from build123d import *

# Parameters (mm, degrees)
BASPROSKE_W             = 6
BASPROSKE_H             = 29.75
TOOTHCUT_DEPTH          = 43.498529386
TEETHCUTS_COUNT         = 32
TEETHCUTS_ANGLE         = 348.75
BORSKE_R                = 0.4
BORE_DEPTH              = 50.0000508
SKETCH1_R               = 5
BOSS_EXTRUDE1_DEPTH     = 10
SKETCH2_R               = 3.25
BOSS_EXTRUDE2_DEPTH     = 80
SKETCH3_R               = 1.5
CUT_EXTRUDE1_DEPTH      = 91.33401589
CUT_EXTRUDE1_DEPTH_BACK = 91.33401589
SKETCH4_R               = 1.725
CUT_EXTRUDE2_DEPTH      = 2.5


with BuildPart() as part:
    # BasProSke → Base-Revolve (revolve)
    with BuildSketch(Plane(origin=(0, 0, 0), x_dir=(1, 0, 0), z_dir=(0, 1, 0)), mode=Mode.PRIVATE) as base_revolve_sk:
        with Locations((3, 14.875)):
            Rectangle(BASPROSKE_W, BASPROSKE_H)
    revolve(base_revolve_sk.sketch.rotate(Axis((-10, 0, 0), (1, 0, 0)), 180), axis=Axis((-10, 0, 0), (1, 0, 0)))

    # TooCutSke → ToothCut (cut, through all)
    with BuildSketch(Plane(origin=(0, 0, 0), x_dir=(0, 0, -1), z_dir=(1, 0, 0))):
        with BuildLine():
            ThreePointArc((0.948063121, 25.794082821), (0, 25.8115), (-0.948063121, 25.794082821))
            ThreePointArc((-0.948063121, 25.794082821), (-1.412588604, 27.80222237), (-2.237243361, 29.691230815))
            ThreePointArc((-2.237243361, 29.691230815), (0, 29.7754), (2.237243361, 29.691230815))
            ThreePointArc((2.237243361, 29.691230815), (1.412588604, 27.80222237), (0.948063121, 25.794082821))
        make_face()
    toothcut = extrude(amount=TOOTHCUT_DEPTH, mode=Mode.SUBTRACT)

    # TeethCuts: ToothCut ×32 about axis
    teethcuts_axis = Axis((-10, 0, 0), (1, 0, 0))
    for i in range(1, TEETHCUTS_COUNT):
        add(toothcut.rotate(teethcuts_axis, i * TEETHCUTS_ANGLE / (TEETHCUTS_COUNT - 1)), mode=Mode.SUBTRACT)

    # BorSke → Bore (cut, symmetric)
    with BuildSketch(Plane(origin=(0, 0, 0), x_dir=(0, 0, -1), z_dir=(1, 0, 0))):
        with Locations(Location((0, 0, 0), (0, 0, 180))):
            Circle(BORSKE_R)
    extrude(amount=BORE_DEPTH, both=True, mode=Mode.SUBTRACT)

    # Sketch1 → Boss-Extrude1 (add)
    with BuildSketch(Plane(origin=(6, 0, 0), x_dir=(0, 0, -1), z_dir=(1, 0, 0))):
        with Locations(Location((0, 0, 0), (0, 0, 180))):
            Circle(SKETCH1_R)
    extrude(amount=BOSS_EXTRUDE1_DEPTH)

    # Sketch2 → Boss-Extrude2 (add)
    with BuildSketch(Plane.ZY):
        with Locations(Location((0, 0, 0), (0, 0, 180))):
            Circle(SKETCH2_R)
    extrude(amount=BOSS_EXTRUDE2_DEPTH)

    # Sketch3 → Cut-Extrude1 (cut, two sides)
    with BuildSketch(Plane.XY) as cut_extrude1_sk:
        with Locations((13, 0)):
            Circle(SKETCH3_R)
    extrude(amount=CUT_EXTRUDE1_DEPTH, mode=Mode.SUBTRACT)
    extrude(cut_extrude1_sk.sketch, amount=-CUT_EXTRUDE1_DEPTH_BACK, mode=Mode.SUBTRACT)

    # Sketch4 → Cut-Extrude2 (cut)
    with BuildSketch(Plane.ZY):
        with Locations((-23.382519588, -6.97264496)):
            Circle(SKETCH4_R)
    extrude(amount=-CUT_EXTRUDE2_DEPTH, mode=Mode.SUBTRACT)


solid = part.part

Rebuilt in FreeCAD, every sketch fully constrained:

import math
import FreeCAD as App
import Part
import Sketcher
from FreeCAD import Vector
Q = App.Units.Quantity


def add_polygon(sketch, points):
    """Adds a closed chain of lines whose ends are joined by coincident constraints."""
    first, n = sketch.GeometryCount, len(points)
    for a, b in zip(points, points[1:] + points[:1]):
        sketch.addGeometry(Part.LineSegment(App.Vector(*a, 0), App.Vector(*b, 0)), False)
    for i in range(n):
        sketch.addConstraint(Sketcher.Constraint("Coincident", first + i, 2, first + (i + 1) % n, 1))

doc = App.newDocument("Part")
body = doc.addObject("PartDesign::Body", "Body")

# Sketch on XZ plane
sketch1 = body.newObject("Sketcher::SketchObject", "Sketch")
sketch1.AttachmentSupport = (doc.getObject("XZ_Plane"), [""])
sketch1.MapMode = "FlatFace"
add_polygon(sketch1, [(0, -30), (0, 0), (6, 0), (6, -30)])  # lines 0-3
sketch1.addConstraint([
    Sketcher.Constraint("Vertical", 0),
    Sketcher.Constraint("Horizontal", 1),
    Sketcher.Constraint("Vertical", 2),
    Sketcher.Constraint("Horizontal", 3),
    Sketcher.Constraint("Coincident", 0, 2, -1, 1),
    Sketcher.Constraint("DistanceX", 1, 1, 1, 2, Q("6 mm")),
    Sketcher.Constraint("DistanceY", 0, 1, 0, 2, Q("29.75 mm")),
])
revolution = body.newObject("PartDesign::Revolution", "Revolution")
revolution.Profile = sketch1
revolution.ReferenceAxis = (sketch1, ["H_Axis"])
revolution.Angle = 360

# Sketch on YZ plane
sketch2 = body.newObject("Sketcher::SketchObject", "Sketch001")
sketch2.AttachmentSupport = (doc.getObject("YZ_Plane"), [""])
sketch2.MapMode = "FlatFace"
sketch2.addGeometry([
    Part.ArcOfCircle(Part.Circle(Vector(0, 0, 0), Vector(0, 0, 1), 25.8), math.radians(-2.1), math.radians(2.1)),
    Part.ArcOfCircle(Part.Circle(Vector(24.3, -12, 0), Vector(0, 0, 1), 11.2), math.radians(61), math.radians(82)),
    Part.ArcOfCircle(Part.Circle(Vector(0, 0, 0), Vector(0, 0, 1), 29.8), math.radians(-4.31), math.radians(4.31)),
    Part.ArcOfCircle(Part.Circle(Vector(24.3, 12, 0), Vector(0, 0, 1), 11.2), math.radians(-82), math.radians(-61)),
], False)
sketch2.addConstraint([
    Sketcher.Constraint("Coincident", 0, 1, 1, 2),
    Sketcher.Constraint("Coincident", 1, 1, 2, 1),
    Sketcher.Constraint("Coincident", 2, 2, 3, 2),
    Sketcher.Constraint("Coincident", 3, 1, 0, 2),
    Sketcher.Constraint("Coincident", 0, 3, -1, 1),
    Sketcher.Constraint("Coincident", 2, 3, -1, 1),
    Sketcher.Constraint("Equal", 1, 3),
    Sketcher.Constraint("Symmetric", 1, 3, 3, 3, -1),
    Sketcher.Constraint("Radius", 1, Q("11.2 mm")),
    Sketcher.Constraint("Radius", 0, Q("25.8115 mm")),
    Sketcher.Constraint("Radius", 2, Q("29.7754 mm")),
    Sketcher.Constraint("DistanceX", -1, 1, 1, 1, Q("29.691231 mm")),
    Sketcher.Constraint("DistanceY", 1, 3, 0, 1, Q("11.097829 mm")),
])
pocket1 = body.newObject("PartDesign::Pocket", "Pocket")
pocket1.Profile = sketch2
pocket1.Type = "ThroughAll"
pocket1.Reversed = True
doc.recompute()

polarpattern = body.newObject("PartDesign::PolarPattern", "PolarPattern")
polarpattern.Originals = [pocket1]
polarpattern.Axis = (doc.getObject("X_Axis"), [""])
polarpattern.Angle = 360
polarpattern.Occurrences = 32
body.Tip = polarpattern

# Sketch on YZ plane
sketch3 = body.newObject("Sketcher::SketchObject", "Sketch002")
sketch3.AttachmentSupport = (doc.getObject("YZ_Plane"), [""])
sketch3.MapMode = "FlatFace"
sketch3.addGeometry(Part.Circle(Vector(0, 0, 0), Vector(0, 0, 1), 0.4), False)
sketch3.addConstraint([
    Sketcher.Constraint("Coincident", 0, 3, -1, 1),
    Sketcher.Constraint("Diameter", 0, Q("0.8 mm")),
])
pocket2 = body.newObject("PartDesign::Pocket", "Pocket001")
pocket2.Profile = sketch3
pocket2.Length = 100.000102
pocket2.Midplane = True

# Sketch on YZ plane
sketch4 = body.newObject("Sketcher::SketchObject", "Sketch003")
sketch4.AttachmentSupport = (doc.getObject("YZ_Plane"), [""])
sketch4.MapMode = "FlatFace"
sketch4.AttachmentOffset = App.Placement(Vector(0, 0, 6), App.Rotation())
sketch4.addGeometry(Part.Circle(Vector(0, 0, 0), Vector(0, 0, 1), 5), False)
sketch4.addConstraint([
    Sketcher.Constraint("Coincident", 0, 3, -1, 1),
    Sketcher.Constraint("Diameter", 0, Q("10 mm")),
])
pad1 = body.newObject("PartDesign::Pad", "Pad")
pad1.Profile = sketch4
pad1.Length = 10

# Sketch on YZ plane
sketch5 = body.newObject("Sketcher::SketchObject", "Sketch004")
sketch5.AttachmentSupport = (doc.getObject("YZ_Plane"), [""])
sketch5.MapMode = "FlatFace"
sketch5.addGeometry(Part.Circle(Vector(0, 0, 0), Vector(0, 0, 1), 3.2), False)
sketch5.addConstraint([
    Sketcher.Constraint("Coincident", 0, 3, -1, 1),
    Sketcher.Constraint("Diameter", 0, Q("6.5 mm")),
])
pad2 = body.newObject("PartDesign::Pad", "Pad001")
pad2.Profile = sketch5
pad2.Length = 80
pad2.Reversed = True

# Sketch on XY plane
sketch6 = body.newObject("Sketcher::SketchObject", "Sketch005")
sketch6.AttachmentSupport = (doc.getObject("XY_Plane"), [""])
sketch6.MapMode = "FlatFace"
sketch6.addGeometry(Part.Circle(Vector(13, 0, 0), Vector(0, 0, 1), 1.5), False)
sketch6.addConstraint([
    Sketcher.Constraint("PointOnObject", 0, 3, -1),
    Sketcher.Constraint("Diameter", 0, Q("3 mm")),
    Sketcher.Constraint("DistanceX", -1, 1, 0, 3, Q("13 mm")),
])
pocket3 = body.newObject("PartDesign::Pocket", "Pocket002")
pocket3.Profile = sketch6
pocket3.Type = "ThroughAll"
pocket3.Midplane = True

# Sketch on YZ plane
sketch7 = body.newObject("Sketcher::SketchObject", "Sketch006")
sketch7.AttachmentSupport = (doc.getObject("YZ_Plane"), [""])
sketch7.MapMode = "FlatFace"
sketch7.addGeometry(Part.Circle(Vector(-7, -23.4, 0), Vector(0, 0, 1), 1.7), False)
sketch7.addConstraint([
    Sketcher.Constraint("Diameter", 0, Q("3.45 mm")),
    Sketcher.Constraint("DistanceY", 0, 3, -1, 1, Q("23.38252 mm")),
    Sketcher.Constraint("DistanceX", 0, 3, -1, 1, Q("6.972645 mm")),
])
pocket4 = body.newObject("PartDesign::Pocket", "Pocket003")
pocket4.Profile = sketch7
pocket4.Length = 2.5
pocket4.Reversed = True

doc.recompute()
